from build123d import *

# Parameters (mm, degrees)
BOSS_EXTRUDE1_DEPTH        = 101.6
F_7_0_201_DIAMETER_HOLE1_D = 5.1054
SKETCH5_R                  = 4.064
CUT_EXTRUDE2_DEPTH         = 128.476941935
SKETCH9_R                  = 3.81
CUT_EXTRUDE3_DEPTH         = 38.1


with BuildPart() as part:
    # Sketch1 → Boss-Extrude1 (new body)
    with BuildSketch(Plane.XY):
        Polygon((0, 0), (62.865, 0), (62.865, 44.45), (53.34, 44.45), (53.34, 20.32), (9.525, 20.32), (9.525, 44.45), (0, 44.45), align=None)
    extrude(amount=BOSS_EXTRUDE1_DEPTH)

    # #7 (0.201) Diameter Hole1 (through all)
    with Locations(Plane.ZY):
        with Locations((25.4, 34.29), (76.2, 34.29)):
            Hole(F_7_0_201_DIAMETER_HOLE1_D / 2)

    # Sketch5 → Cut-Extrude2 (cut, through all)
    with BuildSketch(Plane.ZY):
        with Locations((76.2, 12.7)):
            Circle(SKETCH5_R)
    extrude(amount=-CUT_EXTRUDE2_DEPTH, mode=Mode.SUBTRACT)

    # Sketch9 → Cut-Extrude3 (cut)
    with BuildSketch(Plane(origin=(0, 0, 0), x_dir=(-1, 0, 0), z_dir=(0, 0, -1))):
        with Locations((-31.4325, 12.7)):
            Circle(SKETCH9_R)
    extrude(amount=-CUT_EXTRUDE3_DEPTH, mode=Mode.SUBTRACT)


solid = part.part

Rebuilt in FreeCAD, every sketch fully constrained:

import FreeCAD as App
import Part
import Sketcher
Q = App.Units.Quantity


def add_polygon(sketch, points):
    """Adds a closed chain of lines whose ends are joined by coincident constraints."""
    first, n = sketch.GeometryCount, len(points)
    for a, b in zip(points, points[1:] + points[:1]):
        sketch.addGeometry(Part.LineSegment(App.Vector(*a, 0), App.Vector(*b, 0)), False)
    for i in range(n):
        sketch.addConstraint(Sketcher.Constraint("Coincident", first + i, 2, first + (i + 1) % n, 1))

doc = App.newDocument("Part")
params = doc.addObject("Spreadsheet::Sheet", "Params")
for row, (alias, value) in enumerate([
    ("sketch1_height", "1.75 in"),
    ("sketch1_height2", "0.95 in"),
    ("sketch1_width", "2.475 in"),
    ("pad1_length", "4 in"),
    ("sketch2_diameter", "0.201 in"),
    ("hole_diameter", "0.201 in"),
    ("sketch3_diameter", "0.32 in"),
    ("sketch4_diameter", "0.3 in"),
    ("pocket2_length", "1.5 in"),
], start=1):
    params.set(f"A{row}", alias)
    params.set(f"B{row}", "=" + value)
    params.setAlias(f"B{row}", alias)

body = doc.addObject("PartDesign::Body", "Body")

sketch1 = body.newObject("Sketcher::SketchObject", "Sketch")
sketch1.AttachmentSupport = (doc.getObject("XY_Plane"), [""])
sketch1.MapMode = "FlatFace"
add_polygon(sketch1, [(0, 0), (63, 0), (63, 44), (53, 44), (53, 20), (10, 20), (10, 44), (0, 44)])
sketch1.addConstraint([
    Sketcher.Constraint("Horizontal", 0),
    Sketcher.Constraint("Vertical", 1),
    Sketcher.Constraint("Horizontal", 2),
    Sketcher.Constraint("Vertical", 3),
    Sketcher.Constraint("Horizontal", 4),
    Sketcher.Constraint("Vertical", 5),
    Sketcher.Constraint("Horizontal", 6),
    Sketcher.Constraint("Vertical", 7),
    Sketcher.Constraint("Coincident", 7, 2, -1, 1),
    Sketcher.Constraint("Horizontal", 2, 2, 5, 2),
    Sketcher.Constraint("Equal", 2, 6),
    Sketcher.Constraint("DistanceY", 1, 1, 1, 2, Q("1.75 in")),
    Sketcher.Constraint("DistanceY", 3, 2, 3, 1, Q("0.95 in")),
    Sketcher.Constraint("DistanceX", -1, 1, 2, 2, Q("2.1 in")),
    Sketcher.Constraint("DistanceX", 0, 1, 0, 2, Q("2.475 in")),
])
sketch1.setExpression("Constraints[19]", "Params.sketch1_height")
sketch1.setExpression("Constraints[20]", "Params.sketch1_height2")
sketch1.setExpression("Constraints[22]", "Params.sketch1_width")
pad1 = body.newObject("PartDesign::Pad", "Pad")
pad1.Profile = sketch1
pad1.setExpression("Length", "Params.pad1_length")

sketch2 = body.newObject("Sketcher::SketchObject", "Sketch001")
sketch2.AttachmentSupport = (doc.getObject("YZ_Plane"), [""])
sketch2.MapMode = "FlatFace"
sketch2.addGeometry([
    Part.Circle(App.Vector(34.3, 25.4, 0), App.Vector(0, 0, 1), 2.6),
    Part.Circle(App.Vector(34.3, 76.2, 0), App.Vector(0, 0, 1), 2.6),
], False)
sketch2.addConstraint([
    Sketcher.Constraint("Equal", 0, 1),
    Sketcher.Constraint("Vertical", 0, 3, 1, 3),
    Sketcher.Constraint("Diameter", 0, Q("0.201 in")),
    Sketcher.Constraint("DistanceY", -1, 1, 0, 3, Q("1 in")),
    Sketcher.Constraint("DistanceY", -1, 1, 1, 3, Q("3 in")),
    Sketcher.Constraint("DistanceX", -1, 1, 0, 3, Q("1.35 in")),
])
sketch2.setExpression("Constraints[2]", "Params.sketch2_diameter")
doc.recompute()
hole = body.newObject("PartDesign::Hole", "Hole")
hole.Profile = sketch2
hole.ThreadType = "None"
hole.setExpression("Diameter", "Params.hole_diameter")
hole.DepthType = "ThroughAll"
hole.Reversed = True

sketch3 = body.newObject("Sketcher::SketchObject", "Sketch002")
sketch3.AttachmentSupport = (doc.getObject("YZ_Plane"), [""])
sketch3.MapMode = "FlatFace"
sketch3.addGeometry(Part.Circle(App.Vector(12.7, 76.2, 0), App.Vector(0, 0, 1), 4.1), False)
sketch3.addConstraint([
    Sketcher.Constraint("Diameter", 0, Q("0.32 in")),
    Sketcher.Constraint("DistanceY", -1, 1, 0, 3, Q("3 in")),
    Sketcher.Constraint("DistanceX", -1, 1, 0, 3, Q("0.5 in")),
])
sketch3.setExpression("Constraints[0]", "Params.sketch3_diameter")
pocket1 = body.newObject("PartDesign::Pocket", "Pocket")
pocket1.Profile = sketch3
pocket1.Type = "ThroughAll"
pocket1.Reversed = True

sketch4 = body.newObject("Sketcher::SketchObject", "Sketch003")
sketch4.AttachmentSupport = (doc.getObject("XY_Plane"), [""])
sketch4.MapMode = "FlatFace"
sketch4.addGeometry(Part.Circle(App.Vector(31.4, 12.7, 0), App.Vector(0, 0, 1), 3.8), False)
sketch4.addConstraint([
    Sketcher.Constraint("Diameter", 0, Q("0.3 in")),
    Sketcher.Constraint("DistanceY", -1, 1, 0, 3, Q("0.5 in")),
    Sketcher.Constraint("DistanceX", -1, 1, 0, 3, Q("1.2375 in")),
])
sketch4.setExpression("Constraints[0]", "Params.sketch4_diameter")
pocket2 = body.newObject("PartDesign::Pocket", "Pocket001")
pocket2.Profile = sketch4
pocket2.setExpression("Length", "Params.pocket2_length")
pocket2.Reversed = True

doc.recompute()
